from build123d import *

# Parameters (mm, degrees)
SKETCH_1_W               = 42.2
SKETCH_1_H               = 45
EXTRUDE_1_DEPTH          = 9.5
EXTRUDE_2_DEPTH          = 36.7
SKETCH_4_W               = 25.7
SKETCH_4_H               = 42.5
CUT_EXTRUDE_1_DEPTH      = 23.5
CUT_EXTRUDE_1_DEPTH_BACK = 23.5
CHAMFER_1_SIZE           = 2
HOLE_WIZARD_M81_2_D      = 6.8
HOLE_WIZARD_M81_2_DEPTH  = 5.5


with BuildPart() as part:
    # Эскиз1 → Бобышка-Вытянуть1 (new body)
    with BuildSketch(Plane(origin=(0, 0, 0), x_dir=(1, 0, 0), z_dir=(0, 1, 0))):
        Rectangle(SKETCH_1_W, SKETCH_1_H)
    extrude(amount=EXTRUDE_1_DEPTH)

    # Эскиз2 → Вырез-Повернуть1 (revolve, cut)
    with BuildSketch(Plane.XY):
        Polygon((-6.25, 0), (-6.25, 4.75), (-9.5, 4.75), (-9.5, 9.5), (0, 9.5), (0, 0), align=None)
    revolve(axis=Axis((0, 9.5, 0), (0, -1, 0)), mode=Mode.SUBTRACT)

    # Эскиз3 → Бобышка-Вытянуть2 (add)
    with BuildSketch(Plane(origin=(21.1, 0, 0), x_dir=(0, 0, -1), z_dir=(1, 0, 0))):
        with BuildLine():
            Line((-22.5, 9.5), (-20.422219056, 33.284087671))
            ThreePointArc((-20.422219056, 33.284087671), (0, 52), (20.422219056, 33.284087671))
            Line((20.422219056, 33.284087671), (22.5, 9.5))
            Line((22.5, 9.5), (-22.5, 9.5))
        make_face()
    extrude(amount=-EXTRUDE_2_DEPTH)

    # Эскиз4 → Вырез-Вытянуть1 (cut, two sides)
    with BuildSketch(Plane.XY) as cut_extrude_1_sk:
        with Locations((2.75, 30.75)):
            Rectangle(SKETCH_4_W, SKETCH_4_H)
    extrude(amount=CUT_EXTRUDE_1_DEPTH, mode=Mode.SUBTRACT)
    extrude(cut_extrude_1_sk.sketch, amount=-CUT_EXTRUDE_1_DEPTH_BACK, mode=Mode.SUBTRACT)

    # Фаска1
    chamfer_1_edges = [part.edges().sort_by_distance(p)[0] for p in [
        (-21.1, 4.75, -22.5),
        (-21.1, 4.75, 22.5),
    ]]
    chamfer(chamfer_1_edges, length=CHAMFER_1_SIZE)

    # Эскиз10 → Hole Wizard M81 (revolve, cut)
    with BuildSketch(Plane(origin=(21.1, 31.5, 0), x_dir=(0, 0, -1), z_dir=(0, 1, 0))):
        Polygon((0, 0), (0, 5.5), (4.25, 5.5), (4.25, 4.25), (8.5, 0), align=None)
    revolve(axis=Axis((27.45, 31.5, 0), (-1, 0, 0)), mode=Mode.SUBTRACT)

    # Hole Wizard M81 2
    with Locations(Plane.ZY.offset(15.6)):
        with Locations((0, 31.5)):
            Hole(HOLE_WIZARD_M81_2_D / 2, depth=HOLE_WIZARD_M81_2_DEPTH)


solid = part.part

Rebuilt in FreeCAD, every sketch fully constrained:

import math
import FreeCAD as App
import Part
import Sketcher
from FreeCAD import Vector
Q = App.Units.Quantity


def edges_at(feature, points):
    """Names of the edges that pass closest to the given points."""
    edges = feature.Shape.Edges
    near = lambda p: min(range(len(edges)), key=lambda i: edges[i].distToShape(Part.Vertex(*p))[0])
    return sorted({f"Edge{near(p) + 1}" for p in points})


def add_polygon(sketch, points):
    """Adds a closed chain of lines whose ends are joined by coincident constraints."""
    first, n = sketch.GeometryCount, len(points)
    for a, b in zip(points, points[1:] + points[:1]):
        sketch.addGeometry(Part.LineSegment(App.Vector(*a, 0), App.Vector(*b, 0)), False)
    for i in range(n):
        sketch.addConstraint(Sketcher.Constraint("Coincident", first + i, 2, first + (i + 1) % n, 1))

doc = App.newDocument("Part")
body = doc.addObject("PartDesign::Body", "Body")

# Sketch on XZ plane
sketch1 = body.newObject("Sketcher::SketchObject", "Sketch")
sketch1.AttachmentSupport = (doc.getObject("XZ_Plane"), [""])
sketch1.MapMode = "FlatFace"
add_polygon(sketch1, [(-21, -22), (-21, 22), (21, 22), (21, -22)])  # lines 0-3
sketch1.addConstraint(Sketcher.Constraint("Vertical", 0))
sketch1.addConstraint(Sketcher.Constraint("Horizontal", 1))
sketch1.addConstraint(Sketcher.Constraint("Vertical", 2))
sketch1.addConstraint(Sketcher.Constraint("Horizontal", 3))
sketch1.addConstraint(Sketcher.Constraint("Symmetric", 0, 2, 2, 2, -1, 1))
sketch1.addConstraint(Sketcher.Constraint("DistanceY", 0, 1, 0, 2, Q("45 mm")))
sketch1.addConstraint(Sketcher.Constraint("DistanceX", 1, 1, 1, 2, Q("42.2 mm")))
pad1 = body.newObject("PartDesign::Pad", "Pad")
pad1.Profile = sketch1
pad1.Length = 9.5
pad1.Reversed = True

# Sketch on XY plane
sketch2 = body.newObject("Sketcher::SketchObject", "Sketch001")
sketch2.AttachmentSupport = (doc.getObject("XY_Plane"), [""])
sketch2.MapMode = "FlatFace"
add_polygon(sketch2, [(-6.2, 4.8), (-6.2, 0), (0, 0), (0, 9.5), (-9.5, 9.5), (-9.5, 4.8)])  # lines 0-5
sketch2.addConstraint(Sketcher.Constraint("Vertical", 0))
sketch2.addConstraint(Sketcher.Constraint("Horizontal", 1))
sketch2.addConstraint(Sketcher.Constraint("Vertical", 2))
sketch2.addConstraint(Sketcher.Constraint("Horizontal", 3))
sketch2.addConstraint(Sketcher.Constraint("Vertical", 4))
sketch2.addConstraint(Sketcher.Constraint("Horizontal", 5))
sketch2.addConstraint(Sketcher.Constraint("Coincident", 1, 2, -1, 1))
sketch2.addConstraint(Sketcher.Constraint("Equal", 3, 2))
sketch2.addConstraint(Sketcher.Constraint("Equal", 0, 4))
sketch2.addConstraint(Sketcher.Constraint("DistanceX", 3, 2, 3, 1, Q("9.5 mm")))
sketch2.addConstraint(Sketcher.Constraint("DistanceX", 1, 1, 1, 2, Q("6.25 mm")))
groove = body.newObject("PartDesign::Groove", "Groove")
groove.Profile = sketch2
groove.ReferenceAxis = (sketch2, ["V_Axis"])
groove.Angle = 360

# Sketch on YZ plane
sketch3 = body.newObject("Sketcher::SketchObject", "Sketch002")
sketch3.AttachmentSupport = (doc.getObject("YZ_Plane"), [""])
sketch3.MapMode = "FlatFace"
sketch3.AttachmentOffset = App.Placement(Vector(0, 0, 21.1), App.Rotation())
sketch3.addGeometry(Part.LineSegment(Vector(33, 20, 0), Vector(10, 22, 0)), False)
sketch3.addGeometry(Part.LineSegment(Vector(10, 22, 0), Vector(10, -22, 0)), False)
sketch3.addGeometry(Part.LineSegment(Vector(10, -22, 0), Vector(33, -20, 0)), False)
sketch3.addGeometry(Part.ArcOfCircle(Part.Circle(Vector(32, 0, 0), Vector(0, 0, 1), 20), math.radians(-85), math.radians(85)), False)
sketch3.addConstraint(Sketcher.Constraint("Coincident", 0, 2, 1, 1))
sketch3.addConstraint(Sketcher.Constraint("Coincident", 1, 2, 2, 1))
sketch3.addConstraint(Sketcher.Constraint("Tangent", 2, 2, 3, 1))
sketch3.addConstraint(Sketcher.Constraint("Tangent", 3, 2, 0, 1))
sketch3.addConstraint(Sketcher.Constraint("Vertical", 1))
sketch3.addConstraint(Sketcher.Constraint("Symmetric", 2, 2, 3, 2, -1))
sketch3.addConstraint(Sketcher.Constraint("Radius", 3, Q("20.5 mm")))
sketch3.addConstraint(Sketcher.Constraint("DistanceY", 1, 2, 1, 1, Q("45 mm")))
sketch3.addConstraint(Sketcher.Constraint("DistanceX", 0, 2, 3, 3, Q("22 mm")))
sketch3.addConstraint(Sketcher.Constraint("DistanceX", -1, 1, 3, 3, Q("31.5 mm")))
pad2 = body.newObject("PartDesign::Pad", "Pad001")
pad2.Profile = sketch3
pad2.Length = 36.7
pad2.Reversed = True

# Sketch on XY plane
sketch4 = body.newObject("Sketcher::SketchObject", "Sketch003")
sketch4.AttachmentSupport = (doc.getObject("XY_Plane"), [""])
sketch4.MapMode = "FlatFace"
add_polygon(sketch4, [(-10, 52), (-10, 10), (16, 10), (16, 52)])  # lines 0-3
sketch4.addConstraint(Sketcher.Constraint("Vertical", 0))
sketch4.addConstraint(Sketcher.Constraint("Horizontal", 1))
sketch4.addConstraint(Sketcher.Constraint("Vertical", 2))
sketch4.addConstraint(Sketcher.Constraint("Horizontal", 3))
sketch4.addConstraint(Sketcher.Constraint("DistanceX", 1, 1, 1, 2, Q("25.7 mm")))
sketch4.addConstraint(Sketcher.Constraint("DistanceY", 0, 2, 0, 1, Q("42.5 mm")))
sketch4.addConstraint(Sketcher.Constraint("DistanceY", -1, 1, 2, 2, Q("52 mm")))
sketch4.addConstraint(Sketcher.Constraint("DistanceX", 0, 2, -1, 1, Q("10.1 mm")))
pocket1 = body.newObject("PartDesign::Pocket", "Pocket")
pocket1.Profile = sketch4
pocket1.Type = "ThroughAll"
pocket1.Midplane = True
doc.recompute()

chamfer = body.newObject("PartDesign::Chamfer", "Chamfer")
chamfer.Base = (pocket1, edges_at(pocket1, [(-21.1, 4.75, -22.5), (-21.1, 4.75, 22.5)]))
chamfer.Size = 2

# Sketch on XZ plane
sketch5 = body.newObject("Sketcher::SketchObject", "Sketch004")
sketch5.AttachmentSupport = (doc.getObject("XZ_Plane"), [""])
sketch5.MapMode = "FlatFace"
sketch5.AttachmentOffset = App.Placement(Vector(0, 0, -31.5), App.Rotation())
add_polygon(sketch5, [(15.6, 0), (21.1, 0), (21.1, -8.5), (16.9, -4.2), (15.6, -4.2)])  # lines 0-4
sketch5.addConstraint(Sketcher.Constraint("Horizontal", 0))
sketch5.addConstraint(Sketcher.Constraint("Vertical", 1))
sketch5.addConstraint(Sketcher.Constraint("Horizontal", 3))
sketch5.addConstraint(Sketcher.Constraint("Vertical", 4))
sketch5.addConstraint(Sketcher.Constraint("PointOnObject", 0, 2, -1))
sketch5.addConstraint(Sketcher.Constraint("Angle", 2, Q("135 deg")))
sketch5.addConstraint(Sketcher.Constraint("DistanceX", 0, 1, 0, 2, Q("5.5 mm")))
sketch5.addConstraint(Sketcher.Constraint("DistanceY", 1, 2, 1, 1, Q("8.5 mm")))
sketch5.addConstraint(Sketcher.Constraint("DistanceX", 3, 2, 3, 1, Q("1.25 mm")))
sketch5.addConstraint(Sketcher.Constraint("DistanceX", -1, 1, 0, 2, Q("21.1 mm")))
groove2 = body.newObject("PartDesign::Groove", "Groove001")
groove2.Profile = sketch5
groove2.ReferenceAxis = (sketch5, ["H_Axis"])
groove2.Angle = 360

# Sketch on YZ plane
sketch6 = body.newObject("Sketcher::SketchObject", "Sketch005")
sketch6.AttachmentSupport = (doc.getObject("YZ_Plane"), [""])
sketch6.MapMode = "FlatFace"
sketch6.AttachmentOffset = App.Placement(Vector(0, 0, -15.6), App.Rotation())
sketch6.addGeometry(Part.Circle(Vector(31.5, 0, 0), Vector(0, 0, 1), 3.4), False)
sketch6.addConstraint(Sketcher.Constraint("PointOnObject", 0, 3, -1))
sketch6.addConstraint(Sketcher.Constraint("Diameter", 0, Q("6.8 mm")))
sketch6.addConstraint(Sketcher.Constraint("DistanceX", -1, 1, 0, 3, Q("31.5 mm")))
doc.recompute()
hole = body.newObject("PartDesign::Hole", "Hole")
hole.Profile = sketch6
hole.ThreadType = "None"
hole.Diameter = 6.8
hole.DepthType = "Dimension"
hole.Depth = 5.5
hole.DrillPoint = "Flat"
hole.Reversed = True

doc.recompute()
